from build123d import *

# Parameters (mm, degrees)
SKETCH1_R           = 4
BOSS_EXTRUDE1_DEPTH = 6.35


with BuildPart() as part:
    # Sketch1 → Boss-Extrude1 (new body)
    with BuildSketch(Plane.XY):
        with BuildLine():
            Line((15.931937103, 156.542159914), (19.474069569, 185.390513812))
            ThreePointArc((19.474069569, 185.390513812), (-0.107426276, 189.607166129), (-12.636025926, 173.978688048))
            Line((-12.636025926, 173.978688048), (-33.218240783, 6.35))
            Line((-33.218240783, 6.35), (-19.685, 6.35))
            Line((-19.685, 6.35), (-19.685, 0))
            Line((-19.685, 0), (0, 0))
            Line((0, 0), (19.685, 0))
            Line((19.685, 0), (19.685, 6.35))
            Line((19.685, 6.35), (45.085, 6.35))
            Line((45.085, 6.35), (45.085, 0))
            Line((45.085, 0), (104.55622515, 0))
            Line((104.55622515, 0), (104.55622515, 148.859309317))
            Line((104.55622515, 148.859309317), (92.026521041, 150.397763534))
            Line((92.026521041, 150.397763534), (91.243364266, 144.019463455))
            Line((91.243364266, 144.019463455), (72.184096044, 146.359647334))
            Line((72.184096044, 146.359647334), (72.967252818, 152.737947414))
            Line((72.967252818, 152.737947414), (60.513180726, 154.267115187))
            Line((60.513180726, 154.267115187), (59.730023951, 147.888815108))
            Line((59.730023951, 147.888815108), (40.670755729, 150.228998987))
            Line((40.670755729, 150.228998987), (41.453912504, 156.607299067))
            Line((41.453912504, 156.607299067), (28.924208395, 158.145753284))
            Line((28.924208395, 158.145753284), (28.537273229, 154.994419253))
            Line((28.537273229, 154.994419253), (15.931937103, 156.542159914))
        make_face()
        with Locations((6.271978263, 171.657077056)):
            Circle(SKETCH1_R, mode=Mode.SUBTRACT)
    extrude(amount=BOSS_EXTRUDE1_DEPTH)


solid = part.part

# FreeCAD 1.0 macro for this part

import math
import FreeCAD as App
import Part
import Sketcher

V = App.Vector
Q = App.Units.Quantity

doc = App.newDocument("Part")
body = doc.addObject("PartDesign::Body", "Body")

sketch1 = body.newObject("Sketcher::SketchObject", "Sketch")
sketch1.AttachmentSupport = (doc.getObject("XY_Plane"), [""])
sketch1.MapMode = "FlatFace"
sketch1.addGeometry(Part.LineSegment(V(15.931937, 156.54216, 0), V(19.47407, 185.390514, 0)), False)
sketch1.addGeometry(Part.ArcOfCircle(Part.Circle(V(6.271978, 171.657077, 0), V(0, 0, 1), 19.05), math.radians(46.130102), math.radians(173)), False)
sketch1.addGeometry(Part.LineSegment(V(-12.636026, 173.978688, 0), V(-33.218241, 6.35, 0)), False)
sketch1.addGeometry(Part.LineSegment(V(-33.218241, 6.35, 0), V(-19.685, 6.35, 0)), False)
sketch1.addGeometry(Part.LineSegment(V(-19.685, 6.35, 0), V(-19.685, 0, 0)), False)
sketch1.addGeometry(Part.LineSegment(V(-19.685, 0, 0), V(19.685, 0, 0)), False)
sketch1.addGeometry(Part.LineSegment(V(19.685, 0, 0), V(19.685, 6.35, 0)), False)
sketch1.addGeometry(Part.LineSegment(V(19.685, 6.35, 0), V(45.085, 6.35, 0)), False)
sketch1.addGeometry(Part.LineSegment(V(45.085, 6.35, 0), V(45.085, 0, 0)), False)
sketch1.addGeometry(Part.LineSegment(V(45.085, 0, 0), V(104.556225, 0, 0)), False)
sketch1.addGeometry(Part.LineSegment(V(104.556225, 0, 0), V(104.556225, 148.859309, 0)), False)
sketch1.addGeometry(Part.LineSegment(V(104.556225, 148.859309, 0), V(92.026521, 150.397764, 0)), False)
sketch1.addGeometry(Part.LineSegment(V(92.026521, 150.397764, 0), V(91.243364, 144.019463, 0)), False)
sketch1.addGeometry(Part.LineSegment(V(91.243364, 144.019463, 0), V(72.184096, 146.359647, 0)), False)
sketch1.addGeometry(Part.LineSegment(V(72.184096, 146.359647, 0), V(72.967253, 152.737947, 0)), False)
sketch1.addGeometry(Part.LineSegment(V(72.967253, 152.737947, 0), V(60.513181, 154.267115, 0)), False)
sketch1.addGeometry(Part.LineSegment(V(60.513181, 154.267115, 0), V(59.730024, 147.888815, 0)), False)
sketch1.addGeometry(Part.LineSegment(V(59.730024, 147.888815, 0), V(40.670756, 150.228999, 0)), False)
sketch1.addGeometry(Part.LineSegment(V(40.670756, 150.228999, 0), V(41.453913, 156.607299, 0)), False)
sketch1.addGeometry(Part.LineSegment(V(41.453913, 156.607299, 0), V(28.924208, 158.145753, 0)), False)
sketch1.addGeometry(Part.LineSegment(V(28.924208, 158.145753, 0), V(28.537273, 154.994419, 0)), False)
sketch1.addGeometry(Part.LineSegment(V(28.537273, 154.994419, 0), V(15.931937, 156.54216, 0)), False)
sketch1.addGeometry(Part.Circle(V(6.271978, 171.657077, 0), V(0, 0, 1), 4), False)
sketch1.addConstraint(Sketcher.Constraint("Coincident", 0, 2, 1, 1))
sketch1.addConstraint(Sketcher.Constraint("Tangent", 1, 2, 2, 1))
sketch1.addConstraint(Sketcher.Constraint("Coincident", 2, 2, 3, 1))
sketch1.addConstraint(Sketcher.Constraint("Coincident", 3, 2, 4, 1))
sketch1.addConstraint(Sketcher.Constraint("Coincident", 4, 2, 5, 1))
sketch1.addConstraint(Sketcher.Constraint("Coincident", 5, 2, 6, 1))
sketch1.addConstraint(Sketcher.Constraint("Coincident", 6, 2, 7, 1))
sketch1.addConstraint(Sketcher.Constraint("Coincident", 7, 2, 8, 1))
sketch1.addConstraint(Sketcher.Constraint("Coincident", 8, 2, 9, 1))
sketch1.addConstraint(Sketcher.Constraint("Coincident", 9, 2, 10, 1))
sketch1.addConstraint(Sketcher.Constraint("Coincident", 10, 2, 11, 1))
sketch1.addConstraint(Sketcher.Constraint("Coincident", 11, 2, 12, 1))
sketch1.addConstraint(Sketcher.Constraint("Coincident", 12, 2, 13, 1))
sketch1.addConstraint(Sketcher.Constraint("Coincident", 13, 2, 14, 1))
sketch1.addConstraint(Sketcher.Constraint("Coincident", 14, 2, 15, 1))
sketch1.addConstraint(Sketcher.Constraint("Coincident", 15, 2, 16, 1))
sketch1.addConstraint(Sketcher.Constraint("Coincident", 16, 2, 17, 1))
sketch1.addConstraint(Sketcher.Constraint("Coincident", 17, 2, 18, 1))
sketch1.addConstraint(Sketcher.Constraint("Coincident", 18, 2, 19, 1))
sketch1.addConstraint(Sketcher.Constraint("Coincident", 19, 2, 20, 1))
sketch1.addConstraint(Sketcher.Constraint("Coincident", 20, 2, 21, 1))
sketch1.addConstraint(Sketcher.Constraint("Coincident", 21, 2, 0, 1))
sketch1.addConstraint(Sketcher.Constraint("Horizontal", 3))
sketch1.addConstraint(Sketcher.Constraint("Vertical", 4))
sketch1.addConstraint(Sketcher.Constraint("Horizontal", 5))
sketch1.addConstraint(Sketcher.Constraint("Vertical", 6))
sketch1.addConstraint(Sketcher.Constraint("Horizontal", 7))
sketch1.addConstraint(Sketcher.Constraint("Vertical", 8))
sketch1.addConstraint(Sketcher.Constraint("Horizontal", 9))
sketch1.addConstraint(Sketcher.Constraint("Vertical", 10))
sketch1.addConstraint(Sketcher.Constraint("Coincident", 22, 3, 1, 3))
sketch1.addConstraint(Sketcher.Constraint("Symmetric", 4, 2, 5, 2, -1, 1))
sketch1.addConstraint(Sketcher.Constraint("PointOnObject", 8, 2, -1))
sketch1.addConstraint(Sketcher.Constraint("Parallel", 0, 2))
sketch1.addConstraint(Sketcher.Constraint("Perpendicular", 2, 11))
sketch1.addConstraint(Sketcher.Constraint("Perpendicular", 11, 12))
sketch1.addConstraint(Sketcher.Constraint("Perpendicular", 12, 13))
sketch1.addConstraint(Sketcher.Constraint("Perpendicular", 13, 14))
sketch1.addConstraint(Sketcher.Constraint("Perpendicular", 14, 15))
sketch1.addConstraint(Sketcher.Constraint("Perpendicular", 15, 16))
sketch1.addConstraint(Sketcher.Constraint("Perpendicular", 16, 17))
sketch1.addConstraint(Sketcher.Constraint("Perpendicular", 17, 18))
sketch1.addConstraint(Sketcher.Constraint("Perpendicular", 18, 19))
sketch1.addConstraint(Sketcher.Constraint("Perpendicular", 19, 20))
sketch1.addConstraint(Sketcher.Constraint("Perpendicular", 20, 21))
sketch1.addConstraint(Sketcher.Constraint("Horizontal", 3, 2, 6, 2))
sketch1.addConstraint(Sketcher.Constraint("Equal", 12, 14))
sketch1.addConstraint(Sketcher.Constraint("Equal", 14, 16))
sketch1.addConstraint(Sketcher.Constraint("Equal", 13, 17))
sketch1.addConstraint(Sketcher.Constraint("Equal", 16, 18))
sketch1.addConstraint(Sketcher.Constraint("Equal", 11, 19))
sketch1.addConstraint(Sketcher.Constraint("DistanceX", 7, 1, 7, 2, Q("1 in")))
sketch1.addConstraint(Sketcher.Constraint("Radius", 1, Q("0.75 in")))
sketch1.addConstraint(Sketcher.Constraint("Angle", 0, Q("83 deg")))
sketch1.addConstraint(Sketcher.Constraint("Distance", 21, Q("0.5 in")))
sketch1.addConstraint(Sketcher.Constraint("DistanceX", 5, 1, 5, 2, Q("1.55 in")))
sketch1.addConstraint(Sketcher.Constraint("DistanceY", 4, 2, 4, 1, Q("0.25 in")))
sketch1.addConstraint(Sketcher.Constraint("Diameter", 22, Q("8 mm")))
sketch1.addConstraint(Sketcher.Constraint("Distance", 11, Q("0.497 in")))
sketch1.addConstraint(Sketcher.Constraint("Distance", 12, Q("0.253 in")))
sketch1.addConstraint(Sketcher.Constraint("Distance", 13, Q("0.756 in")))
sketch1.addConstraint(Sketcher.Constraint("Distance", 15, Q("0.494 in")))
sketch1.addConstraint(Sketcher.Constraint("Distance", 20, Q("0.125 in")))
sketch1.addConstraint(Sketcher.Constraint("Distance", 0, Q("29.065 mm")))
sketch1.addConstraint(Sketcher.Constraint("DistanceX", 3, 1, 3, 2, Q("13.533241 mm")))
sketch1.addConstraint(Sketcher.Constraint("DistanceY", 10, 1, 10, 2, Q("148.859309 mm")))
sketch1.addConstraint(Sketcher.Constraint("Distance", 2, Q("168.88755 mm")))
pad1 = body.newObject("PartDesign::Pad", "Pad")
pad1.Profile = sketch1
pad1.Length = Q("0.25 in")

doc.recompute()
